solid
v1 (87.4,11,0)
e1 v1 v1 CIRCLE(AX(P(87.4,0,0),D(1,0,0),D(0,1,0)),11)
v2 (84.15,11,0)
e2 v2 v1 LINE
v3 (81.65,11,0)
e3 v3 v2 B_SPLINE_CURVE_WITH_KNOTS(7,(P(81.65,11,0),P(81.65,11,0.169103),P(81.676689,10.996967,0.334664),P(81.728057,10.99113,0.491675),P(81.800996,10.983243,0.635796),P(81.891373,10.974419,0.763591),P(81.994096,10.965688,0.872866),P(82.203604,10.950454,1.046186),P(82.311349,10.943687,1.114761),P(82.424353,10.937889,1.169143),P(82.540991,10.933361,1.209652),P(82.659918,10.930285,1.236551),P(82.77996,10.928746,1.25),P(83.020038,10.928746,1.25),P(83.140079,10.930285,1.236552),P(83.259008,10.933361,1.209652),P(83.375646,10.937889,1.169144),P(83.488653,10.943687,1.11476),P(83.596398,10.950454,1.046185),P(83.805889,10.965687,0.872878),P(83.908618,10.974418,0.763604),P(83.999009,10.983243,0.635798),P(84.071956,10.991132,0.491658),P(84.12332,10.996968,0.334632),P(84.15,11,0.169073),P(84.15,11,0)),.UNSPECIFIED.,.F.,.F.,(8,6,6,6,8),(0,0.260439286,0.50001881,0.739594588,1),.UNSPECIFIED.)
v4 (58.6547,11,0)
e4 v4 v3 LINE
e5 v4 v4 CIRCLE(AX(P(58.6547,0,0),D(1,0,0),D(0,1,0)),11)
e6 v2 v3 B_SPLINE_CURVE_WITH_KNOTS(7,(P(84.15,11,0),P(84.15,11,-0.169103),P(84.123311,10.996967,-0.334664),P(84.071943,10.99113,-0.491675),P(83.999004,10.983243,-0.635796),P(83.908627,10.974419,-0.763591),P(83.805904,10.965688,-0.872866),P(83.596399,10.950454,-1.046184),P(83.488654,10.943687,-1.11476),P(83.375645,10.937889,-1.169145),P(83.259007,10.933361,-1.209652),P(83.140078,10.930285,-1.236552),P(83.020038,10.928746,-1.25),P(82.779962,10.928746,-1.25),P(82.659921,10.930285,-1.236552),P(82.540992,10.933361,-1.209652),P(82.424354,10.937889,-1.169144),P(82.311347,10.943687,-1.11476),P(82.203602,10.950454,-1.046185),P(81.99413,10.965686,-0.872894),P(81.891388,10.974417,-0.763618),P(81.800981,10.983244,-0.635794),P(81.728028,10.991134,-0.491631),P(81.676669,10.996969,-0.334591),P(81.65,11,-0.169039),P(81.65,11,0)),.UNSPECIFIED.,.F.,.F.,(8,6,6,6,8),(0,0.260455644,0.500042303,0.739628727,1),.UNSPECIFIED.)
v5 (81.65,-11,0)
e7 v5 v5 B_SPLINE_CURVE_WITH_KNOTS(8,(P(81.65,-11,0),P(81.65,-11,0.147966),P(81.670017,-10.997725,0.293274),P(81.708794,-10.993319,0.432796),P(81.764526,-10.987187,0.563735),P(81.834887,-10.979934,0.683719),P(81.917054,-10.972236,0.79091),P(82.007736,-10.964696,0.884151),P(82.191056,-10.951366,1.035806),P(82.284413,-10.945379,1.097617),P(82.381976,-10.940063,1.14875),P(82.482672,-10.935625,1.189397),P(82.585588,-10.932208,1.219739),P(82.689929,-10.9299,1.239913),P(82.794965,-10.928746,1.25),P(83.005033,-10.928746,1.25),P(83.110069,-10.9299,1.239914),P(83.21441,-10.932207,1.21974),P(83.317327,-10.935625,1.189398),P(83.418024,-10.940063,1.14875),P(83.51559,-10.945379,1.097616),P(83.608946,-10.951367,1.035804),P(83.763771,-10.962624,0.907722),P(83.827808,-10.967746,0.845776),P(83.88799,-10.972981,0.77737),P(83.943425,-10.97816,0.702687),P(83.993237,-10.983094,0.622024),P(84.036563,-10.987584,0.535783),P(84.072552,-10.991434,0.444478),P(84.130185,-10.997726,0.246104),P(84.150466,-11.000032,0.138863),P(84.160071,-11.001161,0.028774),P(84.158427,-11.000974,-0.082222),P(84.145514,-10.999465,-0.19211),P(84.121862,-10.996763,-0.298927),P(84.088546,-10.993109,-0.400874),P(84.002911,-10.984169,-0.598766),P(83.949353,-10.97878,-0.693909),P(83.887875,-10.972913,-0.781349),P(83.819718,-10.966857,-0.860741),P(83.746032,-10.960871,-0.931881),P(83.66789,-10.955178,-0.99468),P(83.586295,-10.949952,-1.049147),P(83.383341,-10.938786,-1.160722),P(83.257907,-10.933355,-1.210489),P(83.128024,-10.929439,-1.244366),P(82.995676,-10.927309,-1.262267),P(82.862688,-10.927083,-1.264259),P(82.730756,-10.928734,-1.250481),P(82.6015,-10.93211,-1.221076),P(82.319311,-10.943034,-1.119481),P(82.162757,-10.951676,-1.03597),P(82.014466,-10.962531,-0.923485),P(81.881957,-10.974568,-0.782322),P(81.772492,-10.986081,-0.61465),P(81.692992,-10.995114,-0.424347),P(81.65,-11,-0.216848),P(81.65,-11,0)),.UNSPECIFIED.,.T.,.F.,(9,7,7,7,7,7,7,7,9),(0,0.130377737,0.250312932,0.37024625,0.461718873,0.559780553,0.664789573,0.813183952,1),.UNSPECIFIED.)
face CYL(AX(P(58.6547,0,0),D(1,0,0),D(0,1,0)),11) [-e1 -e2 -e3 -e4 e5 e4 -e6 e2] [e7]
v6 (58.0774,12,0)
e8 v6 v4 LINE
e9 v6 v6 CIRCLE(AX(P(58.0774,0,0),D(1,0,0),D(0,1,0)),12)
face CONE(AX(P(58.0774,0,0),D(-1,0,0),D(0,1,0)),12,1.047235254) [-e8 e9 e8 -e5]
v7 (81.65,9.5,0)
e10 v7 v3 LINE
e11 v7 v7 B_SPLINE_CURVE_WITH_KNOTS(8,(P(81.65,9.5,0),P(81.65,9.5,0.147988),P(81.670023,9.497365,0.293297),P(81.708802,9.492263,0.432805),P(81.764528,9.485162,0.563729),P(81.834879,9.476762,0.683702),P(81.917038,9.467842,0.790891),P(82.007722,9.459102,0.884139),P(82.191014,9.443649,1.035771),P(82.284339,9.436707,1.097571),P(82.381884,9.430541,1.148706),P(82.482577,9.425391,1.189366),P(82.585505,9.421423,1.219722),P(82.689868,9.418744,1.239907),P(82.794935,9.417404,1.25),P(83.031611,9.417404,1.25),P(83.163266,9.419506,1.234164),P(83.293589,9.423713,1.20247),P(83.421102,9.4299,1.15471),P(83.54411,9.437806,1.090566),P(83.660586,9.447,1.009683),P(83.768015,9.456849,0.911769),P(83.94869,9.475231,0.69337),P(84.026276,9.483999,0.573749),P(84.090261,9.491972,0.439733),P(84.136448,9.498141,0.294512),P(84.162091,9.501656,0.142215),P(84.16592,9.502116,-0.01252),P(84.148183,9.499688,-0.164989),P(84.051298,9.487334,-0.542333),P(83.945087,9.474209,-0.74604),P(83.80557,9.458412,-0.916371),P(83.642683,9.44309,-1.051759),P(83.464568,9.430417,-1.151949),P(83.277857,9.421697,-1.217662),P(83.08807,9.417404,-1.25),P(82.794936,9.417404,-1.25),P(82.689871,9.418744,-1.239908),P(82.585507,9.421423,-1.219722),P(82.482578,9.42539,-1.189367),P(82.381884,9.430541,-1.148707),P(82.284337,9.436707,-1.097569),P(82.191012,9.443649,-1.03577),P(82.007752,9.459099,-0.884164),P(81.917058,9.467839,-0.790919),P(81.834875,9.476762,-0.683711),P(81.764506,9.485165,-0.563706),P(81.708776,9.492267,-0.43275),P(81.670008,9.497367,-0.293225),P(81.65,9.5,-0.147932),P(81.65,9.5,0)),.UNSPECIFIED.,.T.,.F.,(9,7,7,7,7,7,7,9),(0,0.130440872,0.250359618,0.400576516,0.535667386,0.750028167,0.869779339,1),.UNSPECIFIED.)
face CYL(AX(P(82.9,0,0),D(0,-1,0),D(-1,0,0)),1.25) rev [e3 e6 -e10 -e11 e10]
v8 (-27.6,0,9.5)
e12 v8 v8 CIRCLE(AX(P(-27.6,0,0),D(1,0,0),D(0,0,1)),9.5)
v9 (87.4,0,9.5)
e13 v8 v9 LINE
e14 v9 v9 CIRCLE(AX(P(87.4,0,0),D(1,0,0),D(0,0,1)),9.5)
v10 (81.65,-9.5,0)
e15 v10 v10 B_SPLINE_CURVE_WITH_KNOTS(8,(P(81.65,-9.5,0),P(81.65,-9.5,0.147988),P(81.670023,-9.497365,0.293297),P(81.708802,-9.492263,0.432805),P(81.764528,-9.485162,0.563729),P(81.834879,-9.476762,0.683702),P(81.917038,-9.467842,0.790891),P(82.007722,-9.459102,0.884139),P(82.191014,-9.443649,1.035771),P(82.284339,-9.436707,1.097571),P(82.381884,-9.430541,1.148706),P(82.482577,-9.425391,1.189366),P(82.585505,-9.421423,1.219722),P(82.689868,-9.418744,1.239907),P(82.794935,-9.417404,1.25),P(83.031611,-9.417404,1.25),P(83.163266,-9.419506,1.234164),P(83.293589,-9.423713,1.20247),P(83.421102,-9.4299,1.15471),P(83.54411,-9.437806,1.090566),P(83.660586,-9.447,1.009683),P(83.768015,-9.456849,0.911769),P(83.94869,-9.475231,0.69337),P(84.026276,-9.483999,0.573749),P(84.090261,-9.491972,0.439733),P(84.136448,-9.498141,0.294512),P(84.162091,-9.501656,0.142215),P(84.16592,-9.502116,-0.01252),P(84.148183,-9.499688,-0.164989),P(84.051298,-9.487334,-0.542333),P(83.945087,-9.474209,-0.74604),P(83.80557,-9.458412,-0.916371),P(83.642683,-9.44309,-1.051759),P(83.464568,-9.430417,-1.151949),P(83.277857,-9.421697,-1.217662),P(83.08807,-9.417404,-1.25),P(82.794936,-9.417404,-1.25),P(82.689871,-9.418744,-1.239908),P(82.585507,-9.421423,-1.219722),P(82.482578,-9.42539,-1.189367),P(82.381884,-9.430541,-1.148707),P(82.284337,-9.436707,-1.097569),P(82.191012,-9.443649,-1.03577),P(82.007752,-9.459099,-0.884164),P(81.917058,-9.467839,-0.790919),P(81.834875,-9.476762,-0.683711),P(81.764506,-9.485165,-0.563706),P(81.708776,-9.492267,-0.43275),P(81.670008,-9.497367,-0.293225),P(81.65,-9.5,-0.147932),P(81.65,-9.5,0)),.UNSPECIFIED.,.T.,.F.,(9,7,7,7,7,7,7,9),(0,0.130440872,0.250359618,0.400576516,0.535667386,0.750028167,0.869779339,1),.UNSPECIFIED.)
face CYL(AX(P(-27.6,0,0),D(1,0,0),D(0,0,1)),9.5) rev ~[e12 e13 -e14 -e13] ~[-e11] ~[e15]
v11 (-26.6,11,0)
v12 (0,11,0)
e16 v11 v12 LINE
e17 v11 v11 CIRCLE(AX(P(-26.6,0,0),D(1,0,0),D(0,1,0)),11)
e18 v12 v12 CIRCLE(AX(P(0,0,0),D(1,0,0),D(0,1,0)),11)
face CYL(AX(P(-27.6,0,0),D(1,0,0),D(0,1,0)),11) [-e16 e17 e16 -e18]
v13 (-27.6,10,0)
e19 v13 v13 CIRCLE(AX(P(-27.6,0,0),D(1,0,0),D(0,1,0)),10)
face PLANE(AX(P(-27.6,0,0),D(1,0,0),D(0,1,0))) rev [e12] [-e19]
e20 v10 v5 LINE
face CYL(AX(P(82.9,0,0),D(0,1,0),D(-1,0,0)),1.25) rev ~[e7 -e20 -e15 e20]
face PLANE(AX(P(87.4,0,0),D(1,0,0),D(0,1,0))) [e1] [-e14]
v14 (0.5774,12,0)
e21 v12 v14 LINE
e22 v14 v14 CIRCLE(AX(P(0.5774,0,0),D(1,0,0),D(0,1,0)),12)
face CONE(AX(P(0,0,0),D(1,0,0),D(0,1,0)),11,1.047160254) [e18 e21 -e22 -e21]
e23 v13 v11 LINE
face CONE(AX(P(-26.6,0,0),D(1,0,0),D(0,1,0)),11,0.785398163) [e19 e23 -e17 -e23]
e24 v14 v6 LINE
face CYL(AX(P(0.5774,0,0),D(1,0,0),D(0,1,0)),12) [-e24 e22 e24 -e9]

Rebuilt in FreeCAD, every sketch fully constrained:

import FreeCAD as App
import Part
import Sketcher
Q = App.Units.Quantity


def edges_at(feature, points):
    """Names of the edges that pass closest to the given points."""
    edges = feature.Shape.Edges
    near = lambda p: min(range(len(edges)), key=lambda i: edges[i].distToShape(Part.Vertex(*p))[0])
    return sorted({f"Edge{near(p) + 1}" for p in points})

doc = App.newDocument("Part")
params = doc.addObject("Spreadsheet::Sheet", "Params")
for row, (alias, value) in enumerate([
    ("sketch1_width", "8 mm"),
    ("sketch1_height", "11 mm"),
    ("sketch1_height2", "9 mm"),
    ("sketch1_width2", "27.6 mm"),
    ("sketch1_width3", "57.5 mm"),
    ("revolution_angle", "360 deg"),
    ("sketch2_diameter", "19 mm"),
    ("hole_diameter", "19 mm"),
    ("chamfer_size", "1 mm"),
    ("sketch3_diameter", "2.5 mm"),
], start=1):
    params.set(f"A{row}", alias)
    params.set(f"B{row}", "=" + value)
    params.setAlias(f"B{row}", alias)

body = doc.addObject("PartDesign::Body", "Body")

sketch1 = doc.addObject("Sketcher::SketchObject", "Sketch")
body.addObject(sketch1)
sketch1.AttachmentSupport = (doc.XY_Plane, [""])
sketch1.MapMode = "FlatFace"
sketch1.addGeometry([
    Part.LineSegment(App.Vector(-27.6, 11, 0), App.Vector(-27.6, 0, 0)),
    Part.LineSegment(App.Vector(-27.6, 0, 0), App.Vector(0, 0, 0)),
    Part.LineSegment(App.Vector(0, 0, 0), App.Vector(0, 9, 0)),
    Part.LineSegment(App.Vector(0, 9, 0), App.Vector(79.4, 9, 0)),
    Part.LineSegment(App.Vector(79.4, 9, 0), App.Vector(79.4, 0, 0)),
    Part.LineSegment(App.Vector(79.4, 0, 0), App.Vector(87.4, 0, 0)),
    Part.LineSegment(App.Vector(87.4, 0, 0), App.Vector(87.4, 11, 0)),
    Part.LineSegment(App.Vector(87.4, 11, 0), App.Vector(58.7, 11, 0)),
    Part.LineSegment(App.Vector(58.7, 11, 0), App.Vector(58.1, 12, 0)),
    Part.LineSegment(App.Vector(58.1, 12, 0), App.Vector(0.6, 12, 0)),
    Part.LineSegment(App.Vector(0.6, 12, 0), App.Vector(0, 11, 0)),
    Part.LineSegment(App.Vector(0, 11, 0), App.Vector(-27.6, 11, 0)),
], False)
sketch1.addConstraint([
    Sketcher.Constraint("Coincident", 0, 2, 1, 1),
    Sketcher.Constraint("Coincident", 1, 2, 2, 1),
    Sketcher.Constraint("Coincident", 2, 2, 3, 1),
    Sketcher.Constraint("Coincident", 3, 2, 4, 1),
    Sketcher.Constraint("Coincident", 4, 2, 5, 1),
    Sketcher.Constraint("Coincident", 5, 2, 6, 1),
    Sketcher.Constraint("Coincident", 6, 2, 7, 1),
    Sketcher.Constraint("Coincident", 7, 2, 8, 1),
    Sketcher.Constraint("Coincident", 8, 2, 9, 1),
    Sketcher.Constraint("Coincident", 9, 2, 10, 1),
    Sketcher.Constraint("Coincident", 10, 2, 11, 1),
    Sketcher.Constraint("Coincident", 11, 2, 0, 1),
    Sketcher.Constraint("Vertical", 0),
    Sketcher.Constraint("Horizontal", 1),
    Sketcher.Constraint("Vertical", 2),
    Sketcher.Constraint("Horizontal", 3),
    Sketcher.Constraint("Vertical", 4),
    Sketcher.Constraint("Horizontal", 5),
    Sketcher.Constraint("Vertical", 6),
    Sketcher.Constraint("Horizontal", 7),
    Sketcher.Constraint("Horizontal", 9),
    Sketcher.Constraint("Horizontal", 11),
    Sketcher.Constraint("Coincident", 1, 2, -1, 1),
    Sketcher.Constraint("PointOnObject", 4, 2, -1),
    Sketcher.Constraint("PointOnObject", 10, 2, -2),
    Sketcher.Constraint("Horizontal", 7, 2, 10, 2),
    Sketcher.Constraint("Equal", 8, 10),
    Sketcher.Constraint("DistanceX", 5, 1, 5, 2, Q("8 mm")),
    Sketcher.Constraint("DistanceY", 0, 2, 0, 1, Q("11 mm")),
    Sketcher.Constraint("DistanceY", 2, 1, 2, 2, Q("9 mm")),
    Sketcher.Constraint("DistanceX", 1, 1, 1, 2, Q("27.6 mm")),
    Sketcher.Constraint("DistanceX", 9, 2, 9, 1, Q("57.5 mm")),
    Sketcher.Constraint("DistanceX", 0, 2, 5, 2, Q("115 mm")),
    Sketcher.Constraint("DistanceY", 7, 2, 8, 2, Q("1 mm")),
    Sketcher.Constraint("DistanceX", 7, 2, 7, 1, Q("28.7453 mm")),
])
sketch1.setExpression("Constraints[27]", "Params.sketch1_width")
sketch1.setExpression("Constraints[28]", "Params.sketch1_height")
sketch1.setExpression("Constraints[29]", "Params.sketch1_height2")
sketch1.setExpression("Constraints[30]", "Params.sketch1_width2")
sketch1.setExpression("Constraints[31]", "Params.sketch1_width3")
revolution = doc.addObject("PartDesign::Revolution", "Revolution")
body.addObject(revolution)
revolution.Profile = sketch1
revolution.ReferenceAxis = (sketch1, ["H_Axis"])
revolution.setExpression("Angle", "Params.revolution_angle")

sketch2 = doc.addObject("Sketcher::SketchObject", "Sketch001")
body.addObject(sketch2)
sketch2.AttachmentSupport = (doc.YZ_Plane, [""])
sketch2.MapMode = "FlatFace"
sketch2.AttachmentOffset = App.Placement(App.Vector(0, 0, -27.6), App.Rotation())
sketch2.addGeometry(Part.Circle(App.Vector(0, 0, 0), App.Vector(0, 0, 1), 10), False)
sketch2.addConstraint([
    Sketcher.Constraint("Coincident", 0, 3, -1, 1),
    Sketcher.Constraint("Diameter", 0, Q("19 mm")),
])
sketch2.setExpression("Constraints[1]", "Params.sketch2_diameter")
doc.recompute()
hole = doc.addObject("PartDesign::Hole", "Hole")
body.addObject(hole)
hole.Profile = sketch2
hole.ThreadType = "None"
hole.setExpression("Diameter", "Params.hole_diameter")
hole.DepthType = "ThroughAll"
hole.Reversed = True
doc.recompute()

chamfer = doc.addObject("PartDesign::Chamfer", "Chamfer")
body.addObject(chamfer)
chamfer.Base = (hole, edges_at(hole, [(-27.6, -11, 0)]))
chamfer.setExpression("Size", "Params.chamfer_size")

sketch3 = doc.addObject("Sketcher::SketchObject", "Sketch002")
body.addObject(sketch3)
sketch3.AttachmentSupport = (doc.XZ_Plane, [""])
sketch3.MapMode = "FlatFace"
sketch3.addGeometry(Part.Circle(App.Vector(82.9, 0, 0), App.Vector(0, 0, 1), 1.2), False)
sketch3.addConstraint([
    Sketcher.Constraint("PointOnObject", 0, 3, -1),
    Sketcher.Constraint("Diameter", 0, Q("2.5 mm")),
    Sketcher.Constraint("DistanceX", -1, 1, 0, 3, Q("82.9 mm")),
])
sketch3.setExpression("Constraints[1]", "Params.sketch3_diameter")
pocket1 = doc.addObject("PartDesign::Pocket", "Pocket")
body.addObject(pocket1)
pocket1.Profile = sketch3
pocket1.Type = "ThroughAll"
pocket1.Midplane = True

doc.recompute()
